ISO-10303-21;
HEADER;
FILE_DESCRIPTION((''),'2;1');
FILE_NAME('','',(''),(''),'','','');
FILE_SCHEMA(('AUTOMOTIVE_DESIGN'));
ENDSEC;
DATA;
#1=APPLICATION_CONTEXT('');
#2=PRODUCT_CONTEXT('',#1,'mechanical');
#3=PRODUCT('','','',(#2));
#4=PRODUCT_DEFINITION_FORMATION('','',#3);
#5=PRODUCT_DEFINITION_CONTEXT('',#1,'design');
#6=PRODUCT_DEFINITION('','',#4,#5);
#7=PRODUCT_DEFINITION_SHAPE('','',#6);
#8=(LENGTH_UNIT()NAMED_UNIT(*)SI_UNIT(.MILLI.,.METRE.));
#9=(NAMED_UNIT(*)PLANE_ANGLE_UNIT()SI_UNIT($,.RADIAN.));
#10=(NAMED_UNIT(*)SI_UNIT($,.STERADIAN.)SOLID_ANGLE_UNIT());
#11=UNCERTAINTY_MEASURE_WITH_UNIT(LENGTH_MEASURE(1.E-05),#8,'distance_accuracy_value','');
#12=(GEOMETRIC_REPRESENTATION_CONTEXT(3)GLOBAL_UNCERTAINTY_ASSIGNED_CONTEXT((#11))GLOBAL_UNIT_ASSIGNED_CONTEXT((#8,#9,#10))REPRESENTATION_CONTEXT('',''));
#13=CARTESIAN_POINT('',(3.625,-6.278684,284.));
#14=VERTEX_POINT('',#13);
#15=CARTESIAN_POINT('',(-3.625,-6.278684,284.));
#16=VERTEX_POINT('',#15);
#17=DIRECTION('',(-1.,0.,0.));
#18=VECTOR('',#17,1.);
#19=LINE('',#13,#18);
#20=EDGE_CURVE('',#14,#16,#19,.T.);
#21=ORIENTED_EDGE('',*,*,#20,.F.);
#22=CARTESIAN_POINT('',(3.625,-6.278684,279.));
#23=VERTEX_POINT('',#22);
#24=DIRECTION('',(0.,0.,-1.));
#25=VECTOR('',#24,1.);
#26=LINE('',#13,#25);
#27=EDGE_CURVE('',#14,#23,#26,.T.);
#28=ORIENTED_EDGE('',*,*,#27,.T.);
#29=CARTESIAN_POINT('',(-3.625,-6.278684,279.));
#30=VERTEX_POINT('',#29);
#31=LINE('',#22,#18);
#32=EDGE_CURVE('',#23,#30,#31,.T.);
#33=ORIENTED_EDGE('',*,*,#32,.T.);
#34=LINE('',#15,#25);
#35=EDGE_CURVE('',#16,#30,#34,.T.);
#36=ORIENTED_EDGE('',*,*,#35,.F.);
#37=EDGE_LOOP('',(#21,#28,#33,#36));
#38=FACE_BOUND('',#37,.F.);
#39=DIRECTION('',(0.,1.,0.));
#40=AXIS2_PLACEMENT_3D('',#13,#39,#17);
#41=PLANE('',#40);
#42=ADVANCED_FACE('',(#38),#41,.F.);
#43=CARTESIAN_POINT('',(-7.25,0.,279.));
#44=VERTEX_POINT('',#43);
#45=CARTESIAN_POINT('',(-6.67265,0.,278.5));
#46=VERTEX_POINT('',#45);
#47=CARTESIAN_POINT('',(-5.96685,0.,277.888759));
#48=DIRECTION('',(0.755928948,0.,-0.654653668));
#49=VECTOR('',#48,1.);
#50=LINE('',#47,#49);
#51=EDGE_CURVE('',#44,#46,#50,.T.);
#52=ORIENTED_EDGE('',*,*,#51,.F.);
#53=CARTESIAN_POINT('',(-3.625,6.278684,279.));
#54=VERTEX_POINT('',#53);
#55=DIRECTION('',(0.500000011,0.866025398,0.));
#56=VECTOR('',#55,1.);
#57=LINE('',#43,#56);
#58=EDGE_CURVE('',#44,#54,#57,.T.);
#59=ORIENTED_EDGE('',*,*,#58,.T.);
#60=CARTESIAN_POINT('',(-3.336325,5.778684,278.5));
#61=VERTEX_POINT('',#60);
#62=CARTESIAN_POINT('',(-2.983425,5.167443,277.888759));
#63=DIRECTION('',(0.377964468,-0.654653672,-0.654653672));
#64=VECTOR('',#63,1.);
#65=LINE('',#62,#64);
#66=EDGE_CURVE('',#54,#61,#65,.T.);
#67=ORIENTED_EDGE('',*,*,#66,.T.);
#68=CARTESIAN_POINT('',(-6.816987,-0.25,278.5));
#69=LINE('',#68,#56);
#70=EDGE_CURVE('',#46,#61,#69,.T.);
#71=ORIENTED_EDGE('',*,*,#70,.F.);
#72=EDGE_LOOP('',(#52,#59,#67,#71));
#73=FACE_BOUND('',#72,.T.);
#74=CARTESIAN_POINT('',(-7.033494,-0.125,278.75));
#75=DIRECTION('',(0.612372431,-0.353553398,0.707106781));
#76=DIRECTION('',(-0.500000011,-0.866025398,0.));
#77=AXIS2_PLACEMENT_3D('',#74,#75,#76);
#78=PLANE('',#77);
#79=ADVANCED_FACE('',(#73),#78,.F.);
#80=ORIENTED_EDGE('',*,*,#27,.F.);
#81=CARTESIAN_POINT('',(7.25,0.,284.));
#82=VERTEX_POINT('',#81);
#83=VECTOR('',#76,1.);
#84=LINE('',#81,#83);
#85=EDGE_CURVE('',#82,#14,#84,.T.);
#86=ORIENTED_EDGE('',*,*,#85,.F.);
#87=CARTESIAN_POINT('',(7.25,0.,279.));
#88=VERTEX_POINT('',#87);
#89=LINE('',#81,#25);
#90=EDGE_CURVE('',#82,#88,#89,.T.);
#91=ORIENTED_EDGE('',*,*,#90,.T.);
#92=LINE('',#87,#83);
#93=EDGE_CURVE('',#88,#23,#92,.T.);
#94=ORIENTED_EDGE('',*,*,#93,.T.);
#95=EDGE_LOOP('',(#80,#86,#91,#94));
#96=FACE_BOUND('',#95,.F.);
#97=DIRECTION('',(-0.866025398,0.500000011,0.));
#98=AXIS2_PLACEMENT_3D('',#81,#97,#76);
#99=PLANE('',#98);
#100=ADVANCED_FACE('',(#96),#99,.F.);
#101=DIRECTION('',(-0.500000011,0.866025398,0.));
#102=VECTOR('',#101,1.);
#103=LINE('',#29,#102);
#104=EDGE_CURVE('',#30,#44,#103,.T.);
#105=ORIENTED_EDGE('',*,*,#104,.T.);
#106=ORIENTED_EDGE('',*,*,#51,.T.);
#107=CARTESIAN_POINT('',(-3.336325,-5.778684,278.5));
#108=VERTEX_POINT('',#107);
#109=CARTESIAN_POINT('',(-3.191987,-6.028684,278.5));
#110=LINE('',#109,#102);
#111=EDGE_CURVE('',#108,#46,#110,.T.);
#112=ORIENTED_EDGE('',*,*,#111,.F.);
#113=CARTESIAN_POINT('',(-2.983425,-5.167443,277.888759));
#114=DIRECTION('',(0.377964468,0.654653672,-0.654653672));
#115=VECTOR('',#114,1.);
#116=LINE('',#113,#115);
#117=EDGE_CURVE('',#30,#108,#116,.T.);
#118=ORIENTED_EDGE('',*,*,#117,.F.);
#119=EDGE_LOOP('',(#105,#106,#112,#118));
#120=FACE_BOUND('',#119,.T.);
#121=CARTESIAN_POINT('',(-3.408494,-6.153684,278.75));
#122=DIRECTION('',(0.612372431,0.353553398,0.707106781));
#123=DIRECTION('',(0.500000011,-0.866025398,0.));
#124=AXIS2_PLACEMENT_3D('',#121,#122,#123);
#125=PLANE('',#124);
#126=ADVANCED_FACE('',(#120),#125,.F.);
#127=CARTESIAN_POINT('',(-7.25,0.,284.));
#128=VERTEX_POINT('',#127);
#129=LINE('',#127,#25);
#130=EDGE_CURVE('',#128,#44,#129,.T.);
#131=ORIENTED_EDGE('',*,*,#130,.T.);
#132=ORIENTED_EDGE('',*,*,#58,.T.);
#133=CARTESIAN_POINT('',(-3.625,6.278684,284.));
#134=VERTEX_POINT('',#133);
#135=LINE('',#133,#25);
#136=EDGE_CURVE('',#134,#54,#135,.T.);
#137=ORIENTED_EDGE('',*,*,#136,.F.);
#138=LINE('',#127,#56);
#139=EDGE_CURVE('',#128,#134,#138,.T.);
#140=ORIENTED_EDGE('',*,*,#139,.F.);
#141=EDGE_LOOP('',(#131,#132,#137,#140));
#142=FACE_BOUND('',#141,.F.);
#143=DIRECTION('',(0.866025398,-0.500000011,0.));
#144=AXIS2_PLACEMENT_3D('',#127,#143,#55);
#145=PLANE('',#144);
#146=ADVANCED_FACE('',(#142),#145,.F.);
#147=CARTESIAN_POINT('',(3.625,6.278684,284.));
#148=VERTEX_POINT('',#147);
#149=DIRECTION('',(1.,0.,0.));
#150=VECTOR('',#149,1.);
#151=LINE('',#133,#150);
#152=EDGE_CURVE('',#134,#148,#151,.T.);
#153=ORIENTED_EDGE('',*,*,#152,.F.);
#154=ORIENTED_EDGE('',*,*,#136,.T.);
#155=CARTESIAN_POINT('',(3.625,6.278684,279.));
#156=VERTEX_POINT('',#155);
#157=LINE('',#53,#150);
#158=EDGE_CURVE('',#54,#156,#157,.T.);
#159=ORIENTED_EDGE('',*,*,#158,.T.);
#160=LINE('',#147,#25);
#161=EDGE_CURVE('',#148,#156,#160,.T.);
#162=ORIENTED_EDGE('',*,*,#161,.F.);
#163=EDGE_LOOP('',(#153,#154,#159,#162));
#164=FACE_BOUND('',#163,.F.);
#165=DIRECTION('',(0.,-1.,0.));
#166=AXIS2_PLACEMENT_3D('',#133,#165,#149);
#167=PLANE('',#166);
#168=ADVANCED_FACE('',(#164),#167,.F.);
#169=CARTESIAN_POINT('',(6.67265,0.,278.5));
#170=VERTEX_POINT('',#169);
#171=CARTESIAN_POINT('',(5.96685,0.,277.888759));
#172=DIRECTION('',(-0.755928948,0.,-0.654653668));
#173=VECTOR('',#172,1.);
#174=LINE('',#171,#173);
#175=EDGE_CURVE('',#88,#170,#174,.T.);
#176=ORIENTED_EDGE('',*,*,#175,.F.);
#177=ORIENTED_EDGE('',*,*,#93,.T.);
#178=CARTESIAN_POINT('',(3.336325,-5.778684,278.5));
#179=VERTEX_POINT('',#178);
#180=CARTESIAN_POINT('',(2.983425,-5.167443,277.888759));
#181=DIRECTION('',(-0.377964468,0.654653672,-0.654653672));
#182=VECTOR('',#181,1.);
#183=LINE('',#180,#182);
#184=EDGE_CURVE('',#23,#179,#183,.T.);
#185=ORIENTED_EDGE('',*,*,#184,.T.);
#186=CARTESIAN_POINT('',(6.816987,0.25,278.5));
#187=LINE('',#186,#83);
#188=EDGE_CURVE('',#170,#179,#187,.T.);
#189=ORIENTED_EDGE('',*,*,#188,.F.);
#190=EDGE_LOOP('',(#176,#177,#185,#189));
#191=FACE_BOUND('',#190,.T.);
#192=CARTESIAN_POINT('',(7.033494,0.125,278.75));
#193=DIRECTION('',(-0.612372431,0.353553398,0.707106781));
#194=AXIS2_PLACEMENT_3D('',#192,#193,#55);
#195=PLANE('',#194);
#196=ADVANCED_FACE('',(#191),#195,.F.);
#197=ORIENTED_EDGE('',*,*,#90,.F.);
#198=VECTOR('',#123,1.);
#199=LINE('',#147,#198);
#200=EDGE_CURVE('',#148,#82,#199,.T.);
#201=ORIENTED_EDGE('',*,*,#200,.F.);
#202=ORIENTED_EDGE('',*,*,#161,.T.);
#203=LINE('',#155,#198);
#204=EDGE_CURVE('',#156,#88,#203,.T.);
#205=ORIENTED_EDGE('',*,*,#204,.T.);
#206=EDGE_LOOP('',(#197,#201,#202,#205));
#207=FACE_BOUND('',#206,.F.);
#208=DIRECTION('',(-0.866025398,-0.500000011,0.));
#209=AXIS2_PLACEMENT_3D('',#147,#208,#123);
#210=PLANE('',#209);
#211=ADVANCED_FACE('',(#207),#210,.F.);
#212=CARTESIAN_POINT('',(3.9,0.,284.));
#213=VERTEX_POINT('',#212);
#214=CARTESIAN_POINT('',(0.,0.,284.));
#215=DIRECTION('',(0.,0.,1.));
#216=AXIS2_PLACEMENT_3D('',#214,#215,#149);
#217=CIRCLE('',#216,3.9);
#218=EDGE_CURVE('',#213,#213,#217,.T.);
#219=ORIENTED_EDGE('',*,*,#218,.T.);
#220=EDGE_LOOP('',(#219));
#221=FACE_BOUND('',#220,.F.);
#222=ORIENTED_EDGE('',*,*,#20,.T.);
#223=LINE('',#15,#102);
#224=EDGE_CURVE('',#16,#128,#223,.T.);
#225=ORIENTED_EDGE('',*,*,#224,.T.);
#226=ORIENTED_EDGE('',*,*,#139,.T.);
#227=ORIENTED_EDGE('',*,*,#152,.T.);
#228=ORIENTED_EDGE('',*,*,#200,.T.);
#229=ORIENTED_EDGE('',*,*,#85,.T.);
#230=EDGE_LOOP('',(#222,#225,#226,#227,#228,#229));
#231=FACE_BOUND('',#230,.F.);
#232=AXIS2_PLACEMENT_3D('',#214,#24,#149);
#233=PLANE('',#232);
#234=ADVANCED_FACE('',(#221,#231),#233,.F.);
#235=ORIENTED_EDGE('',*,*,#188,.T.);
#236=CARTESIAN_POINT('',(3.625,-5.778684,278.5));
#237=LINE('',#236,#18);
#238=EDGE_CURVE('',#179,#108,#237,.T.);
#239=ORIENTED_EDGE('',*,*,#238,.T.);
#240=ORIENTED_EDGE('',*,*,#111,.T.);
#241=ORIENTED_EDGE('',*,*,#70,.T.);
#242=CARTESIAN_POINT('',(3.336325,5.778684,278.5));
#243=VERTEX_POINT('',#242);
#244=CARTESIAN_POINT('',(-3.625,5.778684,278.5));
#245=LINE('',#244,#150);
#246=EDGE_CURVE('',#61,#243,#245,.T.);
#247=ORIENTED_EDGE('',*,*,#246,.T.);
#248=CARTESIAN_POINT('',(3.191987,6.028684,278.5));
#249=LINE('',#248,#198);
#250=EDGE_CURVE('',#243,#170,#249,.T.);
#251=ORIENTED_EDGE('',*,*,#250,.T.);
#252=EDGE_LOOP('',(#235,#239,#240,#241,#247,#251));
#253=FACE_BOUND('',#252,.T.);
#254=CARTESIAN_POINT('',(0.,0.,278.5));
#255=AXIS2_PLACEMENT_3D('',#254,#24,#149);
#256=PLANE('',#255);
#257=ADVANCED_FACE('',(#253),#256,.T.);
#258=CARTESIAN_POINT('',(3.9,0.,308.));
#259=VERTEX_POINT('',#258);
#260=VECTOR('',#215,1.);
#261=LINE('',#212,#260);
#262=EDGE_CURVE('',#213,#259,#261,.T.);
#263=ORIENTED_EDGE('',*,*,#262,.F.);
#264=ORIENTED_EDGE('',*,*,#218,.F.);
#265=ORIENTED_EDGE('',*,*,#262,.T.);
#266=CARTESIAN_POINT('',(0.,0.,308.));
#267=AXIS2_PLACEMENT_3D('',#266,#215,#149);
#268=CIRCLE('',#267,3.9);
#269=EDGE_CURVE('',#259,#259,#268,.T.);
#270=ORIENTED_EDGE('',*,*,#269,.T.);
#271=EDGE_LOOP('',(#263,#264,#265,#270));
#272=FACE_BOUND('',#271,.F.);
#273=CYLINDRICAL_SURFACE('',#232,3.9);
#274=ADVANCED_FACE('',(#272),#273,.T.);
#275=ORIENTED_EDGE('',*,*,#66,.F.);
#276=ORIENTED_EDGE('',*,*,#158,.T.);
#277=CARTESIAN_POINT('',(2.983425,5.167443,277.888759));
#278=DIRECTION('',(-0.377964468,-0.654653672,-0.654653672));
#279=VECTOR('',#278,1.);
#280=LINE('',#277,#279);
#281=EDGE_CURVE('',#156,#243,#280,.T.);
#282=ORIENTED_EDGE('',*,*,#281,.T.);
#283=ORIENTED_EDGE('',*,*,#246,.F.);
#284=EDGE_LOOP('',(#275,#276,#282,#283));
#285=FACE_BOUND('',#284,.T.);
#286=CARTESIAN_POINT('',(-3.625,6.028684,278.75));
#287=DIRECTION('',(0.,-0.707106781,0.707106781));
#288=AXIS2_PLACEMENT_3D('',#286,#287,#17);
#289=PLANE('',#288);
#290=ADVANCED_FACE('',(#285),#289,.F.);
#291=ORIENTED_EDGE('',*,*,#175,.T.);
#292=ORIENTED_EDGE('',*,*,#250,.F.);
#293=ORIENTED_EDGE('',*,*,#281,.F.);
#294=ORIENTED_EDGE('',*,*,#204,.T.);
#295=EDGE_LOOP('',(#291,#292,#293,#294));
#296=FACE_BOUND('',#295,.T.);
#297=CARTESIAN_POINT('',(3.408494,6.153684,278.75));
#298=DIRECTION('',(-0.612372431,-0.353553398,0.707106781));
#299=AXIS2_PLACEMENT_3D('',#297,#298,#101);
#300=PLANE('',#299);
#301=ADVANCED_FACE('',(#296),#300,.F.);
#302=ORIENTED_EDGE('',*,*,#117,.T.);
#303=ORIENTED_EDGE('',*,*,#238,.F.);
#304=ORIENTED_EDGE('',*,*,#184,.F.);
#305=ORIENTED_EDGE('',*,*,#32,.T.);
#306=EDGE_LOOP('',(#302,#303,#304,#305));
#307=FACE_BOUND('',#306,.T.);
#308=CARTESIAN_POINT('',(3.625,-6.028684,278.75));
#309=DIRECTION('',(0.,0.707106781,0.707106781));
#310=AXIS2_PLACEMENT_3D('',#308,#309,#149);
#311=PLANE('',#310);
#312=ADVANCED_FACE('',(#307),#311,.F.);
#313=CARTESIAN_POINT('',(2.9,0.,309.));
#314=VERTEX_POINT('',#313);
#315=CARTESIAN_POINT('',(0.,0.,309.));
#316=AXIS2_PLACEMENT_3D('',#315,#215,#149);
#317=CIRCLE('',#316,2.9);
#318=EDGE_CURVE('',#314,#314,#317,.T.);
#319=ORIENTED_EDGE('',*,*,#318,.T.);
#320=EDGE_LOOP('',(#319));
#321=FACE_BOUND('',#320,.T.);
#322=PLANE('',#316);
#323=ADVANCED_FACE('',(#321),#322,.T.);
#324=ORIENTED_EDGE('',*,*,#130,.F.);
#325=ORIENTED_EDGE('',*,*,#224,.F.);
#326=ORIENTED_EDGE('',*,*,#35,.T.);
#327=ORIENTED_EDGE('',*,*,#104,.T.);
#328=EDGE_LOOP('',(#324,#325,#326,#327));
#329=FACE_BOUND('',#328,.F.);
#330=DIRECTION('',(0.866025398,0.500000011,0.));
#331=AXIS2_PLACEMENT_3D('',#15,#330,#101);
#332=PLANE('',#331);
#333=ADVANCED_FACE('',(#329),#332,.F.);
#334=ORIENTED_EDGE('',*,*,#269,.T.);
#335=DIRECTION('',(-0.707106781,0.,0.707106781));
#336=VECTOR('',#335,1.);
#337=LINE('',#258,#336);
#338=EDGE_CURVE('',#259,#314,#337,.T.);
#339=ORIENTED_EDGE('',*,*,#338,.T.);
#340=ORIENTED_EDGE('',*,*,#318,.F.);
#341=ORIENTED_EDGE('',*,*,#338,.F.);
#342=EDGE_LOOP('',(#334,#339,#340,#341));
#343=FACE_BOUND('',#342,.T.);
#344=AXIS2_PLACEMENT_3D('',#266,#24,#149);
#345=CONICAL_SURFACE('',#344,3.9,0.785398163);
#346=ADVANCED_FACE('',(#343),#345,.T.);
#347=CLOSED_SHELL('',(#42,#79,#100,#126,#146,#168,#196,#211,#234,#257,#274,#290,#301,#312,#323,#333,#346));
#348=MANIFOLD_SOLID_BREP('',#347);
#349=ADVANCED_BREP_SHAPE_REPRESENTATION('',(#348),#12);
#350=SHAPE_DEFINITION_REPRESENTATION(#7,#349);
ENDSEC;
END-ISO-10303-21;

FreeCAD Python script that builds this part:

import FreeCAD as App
import Part
import Sketcher
Q = App.Units.Quantity


def edges_at(feature, points):
    """Names of the edges that pass closest to the given points."""
    edges = feature.Shape.Edges
    near = lambda p: min(range(len(edges)), key=lambda i: edges[i].distToShape(Part.Vertex(*p))[0])
    return sorted({f"Edge{near(p) + 1}" for p in points})

doc = App.newDocument("Part")
body = doc.addObject("PartDesign::Body", "Body")

# Sketch on XY plane
sketch1 = body.newObject("Sketcher::SketchObject", "Sketch")
sketch1.AttachmentSupport = (doc.getObject("XY_Plane"), [""])
sketch1.MapMode = "FlatFace"
sketch1.addGeometry(Part.LineSegment(App.Vector(7, 0, 0), App.Vector(4, 6, 0)), False)
sketch1.addGeometry(Part.LineSegment(App.Vector(4, 6, 0), App.Vector(-4, 6, 0)), False)
sketch1.addGeometry(Part.LineSegment(App.Vector(-4, 6, 0), App.Vector(-7, 0, 0)), False)
sketch1.addGeometry(Part.LineSegment(App.Vector(-7, 0, 0), App.Vector(-4, -6, 0)), False)
sketch1.addGeometry(Part.LineSegment(App.Vector(-4, -6, 0), App.Vector(4, -6, 0)), False)
sketch1.addGeometry(Part.LineSegment(App.Vector(4, -6, 0), App.Vector(7, 0, 0)), False)
sketch1.addConstraint(Sketcher.Constraint("Coincident", 0, 2, 1, 1))
sketch1.addConstraint(Sketcher.Constraint("Coincident", 1, 2, 2, 1))
sketch1.addConstraint(Sketcher.Constraint("Coincident", 2, 2, 3, 1))
sketch1.addConstraint(Sketcher.Constraint("Coincident", 3, 2, 4, 1))
sketch1.addConstraint(Sketcher.Constraint("Coincident", 4, 2, 5, 1))
sketch1.addConstraint(Sketcher.Constraint("Coincident", 5, 2, 0, 1))
sketch1.addConstraint(Sketcher.Constraint("Horizontal", 1))
sketch1.addConstraint(Sketcher.Constraint("Horizontal", 4))
sketch1.addConstraint(Sketcher.Constraint("Symmetric", 0, 2, 3, 2, -1, 1))
sketch1.addConstraint(Sketcher.Constraint("Symmetric", 2, 2, 5, 2, -1, 1))
sketch1.addConstraint(Sketcher.Constraint("PointOnObject", 2, 2, -1))
sketch1.addConstraint(Sketcher.Constraint("Parallel", 2, 5))
sketch1.addConstraint(Sketcher.Constraint("Vertical", 1, 2, 3, 2))
sketch1.addConstraint(Sketcher.Constraint("Angle", 0, Q("120.000001 deg")))
sketch1.addConstraint(Sketcher.Constraint("DistanceX", 1, 2, 1, 1, 7.25))
sketch1.addConstraint(Sketcher.Constraint("DistanceX", 2, 2, 5, 2, 14.5))
pad1 = body.newObject("PartDesign::Pad", "Pad")
pad1.Profile = sketch1
pad1.Length = 5.5

# Sketch on XY plane
sketch2 = body.newObject("Sketcher::SketchObject", "Sketch001")
sketch2.AttachmentSupport = (doc.getObject("XY_Plane"), [""])
sketch2.MapMode = "FlatFace"
sketch2.addGeometry(Part.Circle(App.Vector(0, 0, 0), App.Vector(0, 0, 1), 3.9), False)
sketch2.addConstraint(Sketcher.Constraint("Coincident", 0, 3, -1, 1))
sketch2.addConstraint(Sketcher.Constraint("Diameter", 0, 7.8))
pad2 = body.newObject("PartDesign::Pad", "Pad001")
pad2.Profile = sketch2
pad2.Length = 25
pad2.Reversed = True
doc.recompute()

chamfer = body.newObject("PartDesign::Chamfer", "Chamfer")
chamfer.Base = (pad2, edges_at(pad2, [(-3.9, 0, -25)]))
chamfer.Size = 1
doc.recompute()

chamfer2 = body.newObject("PartDesign::Chamfer", "Chamfer001")
chamfer2.Base = (chamfer, edges_at(chamfer, [
    (5.438, 3.139, 5.5),
    (0, 6.279, 5.5),
    (-5.438, 3.139, 5.5),
    (-5.438, -3.139, 5.5),
    (0, -6.279, 5.5),
    (5.438, -3.139, 5.5),
]))
chamfer2.Size = 0.5
body2 = doc.addObject("PartDesign::Body", "Body001")
doc.recompute()

body.Placement = App.Placement(App.Vector(0, 0, 284), App.Rotation(App.Vector(1, 0, 0), 180))
boolean = body2.newObject("PartDesign::Boolean", "Boolean")
boolean.Type = "Fuse"
boolean.addObjects([body])

doc.recompute()
